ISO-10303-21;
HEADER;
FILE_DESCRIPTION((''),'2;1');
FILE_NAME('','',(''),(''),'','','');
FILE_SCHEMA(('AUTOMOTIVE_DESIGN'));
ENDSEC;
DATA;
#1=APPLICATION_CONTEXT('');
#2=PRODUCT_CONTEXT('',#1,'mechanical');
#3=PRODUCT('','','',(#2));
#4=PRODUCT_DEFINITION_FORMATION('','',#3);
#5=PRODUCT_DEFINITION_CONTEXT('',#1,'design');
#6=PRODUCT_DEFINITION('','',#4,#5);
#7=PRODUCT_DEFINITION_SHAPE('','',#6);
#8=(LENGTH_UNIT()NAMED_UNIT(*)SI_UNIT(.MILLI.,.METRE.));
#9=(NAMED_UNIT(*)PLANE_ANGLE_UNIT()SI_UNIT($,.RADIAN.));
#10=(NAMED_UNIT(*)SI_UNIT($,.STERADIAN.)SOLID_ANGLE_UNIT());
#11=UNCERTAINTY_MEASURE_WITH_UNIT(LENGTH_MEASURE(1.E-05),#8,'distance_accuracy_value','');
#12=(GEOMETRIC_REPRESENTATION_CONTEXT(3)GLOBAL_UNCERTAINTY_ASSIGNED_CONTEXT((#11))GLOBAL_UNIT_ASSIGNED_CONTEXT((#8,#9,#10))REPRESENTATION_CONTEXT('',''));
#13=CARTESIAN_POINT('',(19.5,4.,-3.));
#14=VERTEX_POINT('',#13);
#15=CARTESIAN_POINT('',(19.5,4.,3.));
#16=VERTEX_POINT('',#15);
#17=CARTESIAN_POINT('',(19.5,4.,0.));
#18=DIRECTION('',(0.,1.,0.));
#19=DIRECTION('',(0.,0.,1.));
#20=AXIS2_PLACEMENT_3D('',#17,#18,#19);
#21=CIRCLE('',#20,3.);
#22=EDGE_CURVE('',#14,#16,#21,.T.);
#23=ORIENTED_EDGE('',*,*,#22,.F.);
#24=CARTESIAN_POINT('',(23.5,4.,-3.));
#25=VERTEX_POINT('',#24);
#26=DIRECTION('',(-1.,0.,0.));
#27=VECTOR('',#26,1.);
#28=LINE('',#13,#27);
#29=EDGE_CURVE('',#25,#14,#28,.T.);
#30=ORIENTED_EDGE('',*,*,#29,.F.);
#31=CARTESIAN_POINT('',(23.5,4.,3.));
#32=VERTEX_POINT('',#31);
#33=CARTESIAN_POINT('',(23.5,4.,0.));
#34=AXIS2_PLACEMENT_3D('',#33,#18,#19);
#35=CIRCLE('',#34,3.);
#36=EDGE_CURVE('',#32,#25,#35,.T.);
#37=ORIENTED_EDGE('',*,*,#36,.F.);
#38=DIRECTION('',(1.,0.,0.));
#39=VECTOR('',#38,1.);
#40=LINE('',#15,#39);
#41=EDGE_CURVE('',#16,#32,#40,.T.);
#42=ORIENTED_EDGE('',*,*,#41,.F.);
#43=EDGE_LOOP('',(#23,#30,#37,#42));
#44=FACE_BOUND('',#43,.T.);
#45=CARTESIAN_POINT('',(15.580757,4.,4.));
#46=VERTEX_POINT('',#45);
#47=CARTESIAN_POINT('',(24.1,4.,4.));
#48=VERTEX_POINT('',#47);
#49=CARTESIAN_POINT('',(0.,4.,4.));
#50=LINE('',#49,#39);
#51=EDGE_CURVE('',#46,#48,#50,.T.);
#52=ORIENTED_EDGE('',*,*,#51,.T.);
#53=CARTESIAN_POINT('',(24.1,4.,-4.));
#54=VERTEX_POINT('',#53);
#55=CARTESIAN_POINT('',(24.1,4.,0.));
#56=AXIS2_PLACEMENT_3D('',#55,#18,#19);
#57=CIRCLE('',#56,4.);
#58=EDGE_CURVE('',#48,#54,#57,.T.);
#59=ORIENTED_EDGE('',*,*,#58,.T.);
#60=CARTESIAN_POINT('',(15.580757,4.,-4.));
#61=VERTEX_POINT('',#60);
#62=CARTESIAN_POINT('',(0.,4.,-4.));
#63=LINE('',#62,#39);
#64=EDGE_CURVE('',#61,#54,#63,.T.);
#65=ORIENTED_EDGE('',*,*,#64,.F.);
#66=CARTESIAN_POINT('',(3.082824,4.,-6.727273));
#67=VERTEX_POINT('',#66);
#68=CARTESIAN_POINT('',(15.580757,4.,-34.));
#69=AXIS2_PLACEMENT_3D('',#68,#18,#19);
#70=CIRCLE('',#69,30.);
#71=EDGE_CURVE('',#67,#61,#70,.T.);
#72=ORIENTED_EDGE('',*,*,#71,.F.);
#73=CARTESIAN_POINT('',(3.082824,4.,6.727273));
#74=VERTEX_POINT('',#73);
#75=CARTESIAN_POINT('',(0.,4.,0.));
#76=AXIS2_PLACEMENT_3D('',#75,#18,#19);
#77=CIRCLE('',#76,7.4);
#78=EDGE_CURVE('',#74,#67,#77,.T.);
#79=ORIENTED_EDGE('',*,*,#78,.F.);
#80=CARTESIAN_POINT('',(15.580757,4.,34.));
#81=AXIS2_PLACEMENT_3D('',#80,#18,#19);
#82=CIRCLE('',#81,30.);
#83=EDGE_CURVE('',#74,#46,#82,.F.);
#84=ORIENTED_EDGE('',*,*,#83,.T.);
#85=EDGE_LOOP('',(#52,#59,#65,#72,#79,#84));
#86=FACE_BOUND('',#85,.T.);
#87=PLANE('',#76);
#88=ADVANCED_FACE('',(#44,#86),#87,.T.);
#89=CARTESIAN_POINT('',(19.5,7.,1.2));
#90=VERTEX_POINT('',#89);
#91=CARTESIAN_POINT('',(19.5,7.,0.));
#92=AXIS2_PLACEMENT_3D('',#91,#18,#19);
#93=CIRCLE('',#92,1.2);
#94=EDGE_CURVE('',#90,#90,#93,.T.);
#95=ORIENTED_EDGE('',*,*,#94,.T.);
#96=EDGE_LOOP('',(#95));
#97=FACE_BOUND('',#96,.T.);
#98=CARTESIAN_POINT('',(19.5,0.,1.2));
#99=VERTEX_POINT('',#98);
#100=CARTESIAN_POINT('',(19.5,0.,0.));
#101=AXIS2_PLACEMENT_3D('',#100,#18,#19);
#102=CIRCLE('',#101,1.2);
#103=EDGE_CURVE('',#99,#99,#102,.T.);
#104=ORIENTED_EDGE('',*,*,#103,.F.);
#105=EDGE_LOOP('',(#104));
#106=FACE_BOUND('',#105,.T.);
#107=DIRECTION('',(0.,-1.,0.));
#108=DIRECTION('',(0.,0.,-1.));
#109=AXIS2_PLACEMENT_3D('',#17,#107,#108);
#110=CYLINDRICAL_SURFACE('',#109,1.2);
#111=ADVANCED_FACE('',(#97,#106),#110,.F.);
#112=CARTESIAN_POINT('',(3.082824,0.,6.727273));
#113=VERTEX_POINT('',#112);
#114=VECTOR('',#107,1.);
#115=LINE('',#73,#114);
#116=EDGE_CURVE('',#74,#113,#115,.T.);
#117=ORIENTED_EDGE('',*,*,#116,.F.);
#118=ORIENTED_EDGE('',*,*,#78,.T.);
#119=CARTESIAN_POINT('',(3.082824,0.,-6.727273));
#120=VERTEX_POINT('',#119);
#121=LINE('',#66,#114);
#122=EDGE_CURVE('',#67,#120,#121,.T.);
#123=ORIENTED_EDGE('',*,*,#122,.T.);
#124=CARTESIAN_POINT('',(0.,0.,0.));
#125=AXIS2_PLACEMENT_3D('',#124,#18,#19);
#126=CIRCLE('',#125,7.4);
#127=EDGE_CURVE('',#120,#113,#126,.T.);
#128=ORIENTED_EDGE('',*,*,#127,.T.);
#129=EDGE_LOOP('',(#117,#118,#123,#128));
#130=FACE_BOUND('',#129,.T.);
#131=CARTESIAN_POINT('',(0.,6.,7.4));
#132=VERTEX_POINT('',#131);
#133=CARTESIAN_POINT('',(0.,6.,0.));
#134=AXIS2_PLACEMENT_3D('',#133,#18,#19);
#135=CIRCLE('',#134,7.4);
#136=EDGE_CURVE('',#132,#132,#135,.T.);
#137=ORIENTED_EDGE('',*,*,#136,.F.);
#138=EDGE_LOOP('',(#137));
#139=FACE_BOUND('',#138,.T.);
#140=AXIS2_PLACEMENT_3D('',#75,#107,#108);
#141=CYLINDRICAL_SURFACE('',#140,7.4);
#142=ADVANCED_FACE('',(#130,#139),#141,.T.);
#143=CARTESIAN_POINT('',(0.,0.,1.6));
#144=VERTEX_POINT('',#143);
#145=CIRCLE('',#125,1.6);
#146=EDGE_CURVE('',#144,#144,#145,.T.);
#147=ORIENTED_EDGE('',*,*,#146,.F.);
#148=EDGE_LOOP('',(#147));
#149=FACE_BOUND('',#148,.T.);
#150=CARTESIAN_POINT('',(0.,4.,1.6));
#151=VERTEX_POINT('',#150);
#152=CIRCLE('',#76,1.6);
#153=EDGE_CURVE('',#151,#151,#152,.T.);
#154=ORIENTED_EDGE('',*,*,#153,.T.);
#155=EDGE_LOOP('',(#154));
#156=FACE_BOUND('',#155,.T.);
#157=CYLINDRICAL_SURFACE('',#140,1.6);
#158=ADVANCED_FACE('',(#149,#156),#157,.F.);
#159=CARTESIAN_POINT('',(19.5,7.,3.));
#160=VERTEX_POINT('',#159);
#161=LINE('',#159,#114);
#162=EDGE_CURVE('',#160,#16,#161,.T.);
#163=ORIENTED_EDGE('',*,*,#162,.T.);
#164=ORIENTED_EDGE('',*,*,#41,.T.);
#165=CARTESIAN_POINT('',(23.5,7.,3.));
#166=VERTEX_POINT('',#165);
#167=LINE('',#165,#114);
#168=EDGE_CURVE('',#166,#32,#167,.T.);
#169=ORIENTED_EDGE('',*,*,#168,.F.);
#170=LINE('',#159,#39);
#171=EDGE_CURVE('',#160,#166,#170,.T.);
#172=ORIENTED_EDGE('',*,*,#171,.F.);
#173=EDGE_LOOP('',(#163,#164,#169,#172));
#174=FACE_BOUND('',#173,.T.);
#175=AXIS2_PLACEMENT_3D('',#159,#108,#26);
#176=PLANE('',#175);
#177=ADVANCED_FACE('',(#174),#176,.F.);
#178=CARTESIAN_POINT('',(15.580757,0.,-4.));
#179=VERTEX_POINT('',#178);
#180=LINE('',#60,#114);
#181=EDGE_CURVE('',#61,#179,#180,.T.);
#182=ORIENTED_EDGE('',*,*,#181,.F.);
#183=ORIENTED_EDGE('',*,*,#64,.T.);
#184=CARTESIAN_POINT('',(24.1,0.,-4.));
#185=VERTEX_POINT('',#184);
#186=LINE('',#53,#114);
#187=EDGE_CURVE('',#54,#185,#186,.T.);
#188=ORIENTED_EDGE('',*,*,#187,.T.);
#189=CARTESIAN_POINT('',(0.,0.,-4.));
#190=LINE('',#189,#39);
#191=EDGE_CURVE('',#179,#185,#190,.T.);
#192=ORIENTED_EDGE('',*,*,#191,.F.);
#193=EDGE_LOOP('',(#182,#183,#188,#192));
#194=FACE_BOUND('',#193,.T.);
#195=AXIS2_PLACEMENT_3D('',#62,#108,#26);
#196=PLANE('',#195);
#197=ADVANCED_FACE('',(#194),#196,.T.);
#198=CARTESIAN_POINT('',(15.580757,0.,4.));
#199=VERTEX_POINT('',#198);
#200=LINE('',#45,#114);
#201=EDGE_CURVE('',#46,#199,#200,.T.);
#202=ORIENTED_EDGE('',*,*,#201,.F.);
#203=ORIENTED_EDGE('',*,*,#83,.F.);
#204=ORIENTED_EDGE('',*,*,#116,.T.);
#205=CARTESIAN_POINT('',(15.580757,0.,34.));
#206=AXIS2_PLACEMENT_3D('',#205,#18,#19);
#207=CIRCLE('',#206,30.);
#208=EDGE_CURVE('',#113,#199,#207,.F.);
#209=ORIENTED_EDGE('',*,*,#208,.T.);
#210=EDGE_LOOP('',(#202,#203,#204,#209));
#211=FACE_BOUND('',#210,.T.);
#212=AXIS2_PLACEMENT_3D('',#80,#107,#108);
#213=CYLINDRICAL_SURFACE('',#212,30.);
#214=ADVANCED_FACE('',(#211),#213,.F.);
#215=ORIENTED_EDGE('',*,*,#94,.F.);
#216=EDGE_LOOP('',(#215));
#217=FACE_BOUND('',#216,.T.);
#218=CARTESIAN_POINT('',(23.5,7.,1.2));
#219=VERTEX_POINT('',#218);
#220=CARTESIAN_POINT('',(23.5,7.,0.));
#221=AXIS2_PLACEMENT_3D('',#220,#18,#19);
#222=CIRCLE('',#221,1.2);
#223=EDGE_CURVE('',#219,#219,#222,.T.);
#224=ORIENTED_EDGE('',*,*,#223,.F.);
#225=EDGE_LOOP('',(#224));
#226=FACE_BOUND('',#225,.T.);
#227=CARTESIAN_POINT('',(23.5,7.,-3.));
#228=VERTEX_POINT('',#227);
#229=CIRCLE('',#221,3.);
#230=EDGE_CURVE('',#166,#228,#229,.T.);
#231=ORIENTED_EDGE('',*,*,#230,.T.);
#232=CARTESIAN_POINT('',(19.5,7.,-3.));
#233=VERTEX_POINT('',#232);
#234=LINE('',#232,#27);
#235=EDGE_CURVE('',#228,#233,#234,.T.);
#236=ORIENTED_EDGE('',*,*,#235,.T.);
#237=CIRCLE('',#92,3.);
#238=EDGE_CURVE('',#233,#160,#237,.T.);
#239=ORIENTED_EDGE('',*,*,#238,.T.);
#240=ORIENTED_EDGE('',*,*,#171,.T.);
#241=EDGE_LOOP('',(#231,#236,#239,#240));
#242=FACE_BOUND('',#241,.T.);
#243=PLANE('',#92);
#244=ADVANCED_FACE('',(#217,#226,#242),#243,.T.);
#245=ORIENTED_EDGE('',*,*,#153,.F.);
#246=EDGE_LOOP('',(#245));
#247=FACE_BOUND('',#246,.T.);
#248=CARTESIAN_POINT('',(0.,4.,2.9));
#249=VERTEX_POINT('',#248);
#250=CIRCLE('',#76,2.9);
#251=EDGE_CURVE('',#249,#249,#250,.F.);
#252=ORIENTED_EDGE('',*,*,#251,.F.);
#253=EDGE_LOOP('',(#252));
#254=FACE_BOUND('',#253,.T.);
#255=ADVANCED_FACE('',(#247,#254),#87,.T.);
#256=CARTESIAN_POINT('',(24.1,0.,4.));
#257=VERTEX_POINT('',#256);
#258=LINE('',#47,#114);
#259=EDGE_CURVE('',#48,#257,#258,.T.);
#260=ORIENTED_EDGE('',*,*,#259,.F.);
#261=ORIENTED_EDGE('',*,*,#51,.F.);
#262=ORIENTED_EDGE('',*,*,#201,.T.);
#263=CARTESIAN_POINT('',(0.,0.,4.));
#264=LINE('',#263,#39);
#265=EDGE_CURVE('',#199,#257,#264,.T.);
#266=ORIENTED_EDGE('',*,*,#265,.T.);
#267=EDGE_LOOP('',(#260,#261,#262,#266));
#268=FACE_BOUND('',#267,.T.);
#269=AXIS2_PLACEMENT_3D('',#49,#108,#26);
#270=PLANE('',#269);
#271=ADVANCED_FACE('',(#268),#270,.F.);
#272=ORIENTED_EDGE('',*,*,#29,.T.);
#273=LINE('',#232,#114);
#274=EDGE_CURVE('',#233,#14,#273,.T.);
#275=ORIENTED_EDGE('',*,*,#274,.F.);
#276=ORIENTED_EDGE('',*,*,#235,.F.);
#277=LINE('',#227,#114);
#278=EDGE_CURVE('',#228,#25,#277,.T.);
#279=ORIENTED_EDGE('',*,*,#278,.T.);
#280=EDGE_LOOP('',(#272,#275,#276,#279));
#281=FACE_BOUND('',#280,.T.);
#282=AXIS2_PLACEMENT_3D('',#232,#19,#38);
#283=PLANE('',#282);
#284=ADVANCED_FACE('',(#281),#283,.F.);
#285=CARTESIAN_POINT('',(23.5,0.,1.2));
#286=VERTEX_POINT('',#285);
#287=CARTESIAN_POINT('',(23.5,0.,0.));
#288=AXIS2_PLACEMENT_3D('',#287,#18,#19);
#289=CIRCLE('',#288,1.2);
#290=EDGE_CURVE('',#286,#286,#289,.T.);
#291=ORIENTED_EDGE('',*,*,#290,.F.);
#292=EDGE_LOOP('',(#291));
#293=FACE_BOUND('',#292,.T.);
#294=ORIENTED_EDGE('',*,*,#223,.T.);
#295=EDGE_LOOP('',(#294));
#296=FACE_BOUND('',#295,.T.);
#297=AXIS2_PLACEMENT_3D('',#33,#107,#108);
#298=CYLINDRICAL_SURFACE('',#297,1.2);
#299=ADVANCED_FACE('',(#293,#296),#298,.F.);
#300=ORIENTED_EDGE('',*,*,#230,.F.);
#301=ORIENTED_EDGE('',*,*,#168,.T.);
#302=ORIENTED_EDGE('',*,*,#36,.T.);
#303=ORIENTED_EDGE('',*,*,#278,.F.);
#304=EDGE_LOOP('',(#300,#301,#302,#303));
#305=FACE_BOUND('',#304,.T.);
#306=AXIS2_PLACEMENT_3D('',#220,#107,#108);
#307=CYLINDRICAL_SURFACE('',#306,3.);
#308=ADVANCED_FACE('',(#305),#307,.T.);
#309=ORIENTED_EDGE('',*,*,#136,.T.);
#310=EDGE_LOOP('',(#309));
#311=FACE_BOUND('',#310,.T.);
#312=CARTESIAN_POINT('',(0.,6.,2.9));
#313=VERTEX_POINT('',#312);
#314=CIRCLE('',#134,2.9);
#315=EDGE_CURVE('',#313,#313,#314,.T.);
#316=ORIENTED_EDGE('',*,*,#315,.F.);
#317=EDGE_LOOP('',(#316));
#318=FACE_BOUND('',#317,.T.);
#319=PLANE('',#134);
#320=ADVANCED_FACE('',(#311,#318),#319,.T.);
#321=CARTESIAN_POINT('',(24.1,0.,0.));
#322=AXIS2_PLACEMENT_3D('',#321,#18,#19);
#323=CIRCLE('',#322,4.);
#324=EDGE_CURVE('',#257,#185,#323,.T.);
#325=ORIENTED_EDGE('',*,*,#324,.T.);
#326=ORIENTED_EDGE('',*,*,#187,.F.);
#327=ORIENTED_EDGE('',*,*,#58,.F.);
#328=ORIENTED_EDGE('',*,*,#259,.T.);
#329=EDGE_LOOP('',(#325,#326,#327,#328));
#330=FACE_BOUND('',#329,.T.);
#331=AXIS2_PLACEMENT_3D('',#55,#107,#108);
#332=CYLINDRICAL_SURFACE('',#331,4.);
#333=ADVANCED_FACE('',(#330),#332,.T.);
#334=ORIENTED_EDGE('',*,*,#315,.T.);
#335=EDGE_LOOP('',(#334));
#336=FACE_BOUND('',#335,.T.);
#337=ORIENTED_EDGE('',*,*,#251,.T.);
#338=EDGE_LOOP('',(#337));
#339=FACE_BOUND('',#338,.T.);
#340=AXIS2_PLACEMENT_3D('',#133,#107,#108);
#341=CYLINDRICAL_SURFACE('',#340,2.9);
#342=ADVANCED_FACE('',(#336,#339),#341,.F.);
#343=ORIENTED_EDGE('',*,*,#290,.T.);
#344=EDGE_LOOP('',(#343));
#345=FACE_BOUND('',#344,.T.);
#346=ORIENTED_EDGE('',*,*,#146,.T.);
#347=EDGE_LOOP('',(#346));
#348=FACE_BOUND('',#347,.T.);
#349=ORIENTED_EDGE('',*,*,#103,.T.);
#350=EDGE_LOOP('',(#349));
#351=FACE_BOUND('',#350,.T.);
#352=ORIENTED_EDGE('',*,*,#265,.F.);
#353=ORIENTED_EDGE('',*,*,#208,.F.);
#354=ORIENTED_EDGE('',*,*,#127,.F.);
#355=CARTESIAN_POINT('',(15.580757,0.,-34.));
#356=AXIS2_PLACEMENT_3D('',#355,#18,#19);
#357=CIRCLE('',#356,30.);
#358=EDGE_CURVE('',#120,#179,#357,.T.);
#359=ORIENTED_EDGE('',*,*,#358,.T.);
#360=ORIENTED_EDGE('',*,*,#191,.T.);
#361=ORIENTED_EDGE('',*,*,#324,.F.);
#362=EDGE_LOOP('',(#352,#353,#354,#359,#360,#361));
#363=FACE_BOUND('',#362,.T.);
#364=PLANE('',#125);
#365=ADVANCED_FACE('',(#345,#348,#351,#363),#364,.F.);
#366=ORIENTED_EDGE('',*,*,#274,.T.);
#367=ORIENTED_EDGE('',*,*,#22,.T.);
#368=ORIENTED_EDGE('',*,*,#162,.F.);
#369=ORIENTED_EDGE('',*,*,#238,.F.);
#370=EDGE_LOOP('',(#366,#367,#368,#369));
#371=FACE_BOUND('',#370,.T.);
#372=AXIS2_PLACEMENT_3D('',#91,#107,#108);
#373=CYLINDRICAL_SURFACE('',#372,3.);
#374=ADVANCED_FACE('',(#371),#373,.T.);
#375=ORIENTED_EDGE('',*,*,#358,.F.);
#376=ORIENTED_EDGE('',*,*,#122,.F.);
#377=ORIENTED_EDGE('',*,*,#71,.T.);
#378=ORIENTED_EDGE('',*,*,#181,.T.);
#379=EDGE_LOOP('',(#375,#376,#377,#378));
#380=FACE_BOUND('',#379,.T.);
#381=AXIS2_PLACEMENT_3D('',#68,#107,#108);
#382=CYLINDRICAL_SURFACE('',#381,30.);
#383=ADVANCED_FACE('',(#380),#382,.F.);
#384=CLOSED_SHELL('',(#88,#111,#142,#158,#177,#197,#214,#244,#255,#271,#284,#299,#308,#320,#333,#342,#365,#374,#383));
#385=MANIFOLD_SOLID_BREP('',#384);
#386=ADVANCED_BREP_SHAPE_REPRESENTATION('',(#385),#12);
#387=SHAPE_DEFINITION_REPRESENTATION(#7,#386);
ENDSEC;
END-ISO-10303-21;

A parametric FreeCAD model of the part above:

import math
import FreeCAD as App
import Part
import Sketcher
from FreeCAD import Vector
Q = App.Units.Quantity

doc = App.newDocument("Part")
body = doc.addObject("PartDesign::Body", "Body")

sketch1 = doc.addObject("Sketcher::SketchObject", "Sketch")
body.addObject(sketch1)
sketch1.AttachmentSupport = (doc.XZ_Plane, [""])
sketch1.MapMode = "FlatFace"
sketch1.addGeometry([
    Part.LineSegment(Vector(24.1, -4, 0), Vector(15.580757, -4, 0)),
    Part.ArcOfCircle(Part.Circle(Vector(15.580757, -34, 0), Vector(0, 0, 1), 30), math.radians(90), math.radians(114.619977)),
    Part.ArcOfCircle(Part.Circle(Vector(0, 0, 0), Vector(0, 0, 1), 7.4), math.radians(65.380023), math.radians(294.619977)),
    Part.ArcOfCircle(Part.Circle(Vector(15.580757, 34, 0), Vector(0, 0, 1), 30), math.radians(-114.619977), math.radians(-90)),
    Part.LineSegment(Vector(15.580757, 4, 0), Vector(24.1, 4, 0)),
    Part.ArcOfCircle(Part.Circle(Vector(24.1, 0, 0), Vector(0, 0, 1), 4), math.radians(-90), math.radians(90)),
    Part.Circle(Vector(0, 0, 0), Vector(0, 0, 1), 1.6),
    Part.Circle(Vector(19.5, 0, 0), Vector(0, 0, 1), 1.2),
    Part.Circle(Vector(23.5, 0, 0), Vector(0, 0, 1), 1.2),
], False)
sketch1.addConstraint([
    Sketcher.Constraint("Tangent", 0, 2, 1, 1),
    Sketcher.Constraint("Tangent", 1, 2, 2, 2),
    Sketcher.Constraint("Tangent", 2, 1, 3, 1),
    Sketcher.Constraint("Tangent", 3, 2, 4, 1),
    Sketcher.Constraint("Tangent", 4, 2, 5, 2),
    Sketcher.Constraint("Tangent", 5, 1, 0, 1),
    Sketcher.Constraint("Horizontal", 0),
    Sketcher.Constraint("Horizontal", 4),
    Sketcher.Constraint("Coincident", 2, 3, -1, 1),
    Sketcher.Constraint("Coincident", 6, 3, -1, 1),
    Sketcher.Constraint("Equal", 1, 3),
    Sketcher.Constraint("Equal", 7, 8),
    Sketcher.Constraint("PointOnObject", 5, 3, -1),
    Sketcher.Constraint("PointOnObject", 7, 3, -1),
    Sketcher.Constraint("PointOnObject", 8, 3, -1),
    Sketcher.Constraint("Radius", 1, Q("30 mm")),
    Sketcher.Constraint("Radius", 5, Q("4 mm")),
    Sketcher.Constraint("Diameter", 6, Q("3.2 mm")),
    Sketcher.Constraint("Diameter", 7, Q("2.4 mm")),
    Sketcher.Constraint("Radius", 2, Q("7.4 mm")),
    Sketcher.Constraint("DistanceX", 7, 3, 8, 3, Q("4 mm")),
    Sketcher.Constraint("DistanceX", -1, 1, 5, 3, Q("24.1 mm")),
    Sketcher.Constraint("DistanceX", -1, 1, 7, 3, Q("19.5 mm")),
])
pad1 = doc.addObject("PartDesign::Pad", "Pad")
body.addObject(pad1)
pad1.Profile = sketch1
pad1.Length = 4
pad1.Reversed = True

sketch2 = doc.addObject("Sketcher::SketchObject", "Sketch001")
body.addObject(sketch2)
sketch2.AttachmentSupport = (doc.XZ_Plane, [""])
sketch2.MapMode = "FlatFace"
sketch2.AttachmentOffset = App.Placement(Vector(0, 0, -4), App.Rotation())
sketch2.addGeometry([
    Part.LineSegment(Vector(23.5, -3, 0), Vector(19.5, -3, 0)),
    Part.ArcOfCircle(Part.Circle(Vector(19.5, 0, 0), Vector(0, 0, 1), 3), math.radians(90), math.radians(270)),
    Part.LineSegment(Vector(19.5, 3, 0), Vector(23.5, 3, 0)),
    Part.ArcOfCircle(Part.Circle(Vector(23.5, 0, 0), Vector(0, 0, 1), 3), math.radians(-90), math.radians(90)),
    Part.Circle(Vector(23.5, 0, 0), Vector(0, 0, 1), 1.2),
    Part.Circle(Vector(19.5, 0, 0), Vector(0, 0, 1), 1.2),
], False)
sketch2.addConstraint([
    Sketcher.Constraint("Tangent", 0, 2, 1, 2),
    Sketcher.Constraint("Tangent", 1, 1, 2, 1),
    Sketcher.Constraint("Tangent", 2, 2, 3, 2),
    Sketcher.Constraint("Tangent", 3, 1, 0, 1),
    Sketcher.Constraint("Horizontal", 0),
    Sketcher.Constraint("Horizontal", 2),
    Sketcher.Constraint("Coincident", 4, 3, 3, 3),
    Sketcher.Constraint("Coincident", 5, 3, 1, 3),
    Sketcher.Constraint("Equal", 4, 5),
    Sketcher.Constraint("PointOnObject", 1, 3, -1),
    Sketcher.Constraint("Radius", 1, Q("3 mm")),
    Sketcher.Constraint("Diameter", 4, Q("2.4 mm")),
    Sketcher.Constraint("DistanceX", 0, 2, 0, 1, Q("4 mm")),
    Sketcher.Constraint("DistanceX", -1, 1, 1, 3, Q("19.5 mm")),
])
pad2 = doc.addObject("PartDesign::Pad", "Pad001")
body.addObject(pad2)
pad2.Profile = sketch2
pad2.Length = 3
pad2.Reversed = True

sketch3 = doc.addObject("Sketcher::SketchObject", "Sketch002")
body.addObject(sketch3)
sketch3.AttachmentSupport = (doc.XZ_Plane, [""])
sketch3.MapMode = "FlatFace"
sketch3.AttachmentOffset = App.Placement(Vector(0, 0, -4), App.Rotation())
sketch3.addGeometry([
    Part.ArcOfCircle(Part.Circle(Vector(0, 0, 0), Vector(0, 0, 1), 7.4), math.radians(-65.380023), math.radians(0)),
    Part.ArcOfCircle(Part.Circle(Vector(0, 0, 0), Vector(0, 0, 1), 7.4), math.radians(65.380023), math.radians(294.619977)),
    Part.ArcOfCircle(Part.Circle(Vector(0, 0, 0), Vector(0, 0, 1), 7.4), math.radians(0), math.radians(65.380023)),
    Part.Circle(Vector(0, 0, 0), Vector(0, 0, 1), 2.9),
], False)
sketch3.addConstraint([
    Sketcher.Constraint("Tangent", 0, 1, 1, 2),
    Sketcher.Constraint("Tangent", 1, 1, 2, 2),
    Sketcher.Constraint("Tangent", 2, 1, 0, 2),
    Sketcher.Constraint("Coincident", 0, 3, -1, 1),
    Sketcher.Constraint("Coincident", 3, 3, -1, 1),
    Sketcher.Constraint("PointOnObject", 2, 1, -1),
    Sketcher.Constraint("Vertical", 0, 1, 1, 1),
    Sketcher.Constraint("Diameter", 3, Q("5.8 mm")),
    Sketcher.Constraint("Radius", 0, Q("7.4 mm")),
    Sketcher.Constraint("DistanceX", -1, 1, 0, 1, Q("3.082824 mm")),
])
pad3 = doc.addObject("PartDesign::Pad", "Pad002")
body.addObject(pad3)
pad3.Profile = sketch3
pad3.Length = 2
pad3.Reversed = True

doc.recompute()
